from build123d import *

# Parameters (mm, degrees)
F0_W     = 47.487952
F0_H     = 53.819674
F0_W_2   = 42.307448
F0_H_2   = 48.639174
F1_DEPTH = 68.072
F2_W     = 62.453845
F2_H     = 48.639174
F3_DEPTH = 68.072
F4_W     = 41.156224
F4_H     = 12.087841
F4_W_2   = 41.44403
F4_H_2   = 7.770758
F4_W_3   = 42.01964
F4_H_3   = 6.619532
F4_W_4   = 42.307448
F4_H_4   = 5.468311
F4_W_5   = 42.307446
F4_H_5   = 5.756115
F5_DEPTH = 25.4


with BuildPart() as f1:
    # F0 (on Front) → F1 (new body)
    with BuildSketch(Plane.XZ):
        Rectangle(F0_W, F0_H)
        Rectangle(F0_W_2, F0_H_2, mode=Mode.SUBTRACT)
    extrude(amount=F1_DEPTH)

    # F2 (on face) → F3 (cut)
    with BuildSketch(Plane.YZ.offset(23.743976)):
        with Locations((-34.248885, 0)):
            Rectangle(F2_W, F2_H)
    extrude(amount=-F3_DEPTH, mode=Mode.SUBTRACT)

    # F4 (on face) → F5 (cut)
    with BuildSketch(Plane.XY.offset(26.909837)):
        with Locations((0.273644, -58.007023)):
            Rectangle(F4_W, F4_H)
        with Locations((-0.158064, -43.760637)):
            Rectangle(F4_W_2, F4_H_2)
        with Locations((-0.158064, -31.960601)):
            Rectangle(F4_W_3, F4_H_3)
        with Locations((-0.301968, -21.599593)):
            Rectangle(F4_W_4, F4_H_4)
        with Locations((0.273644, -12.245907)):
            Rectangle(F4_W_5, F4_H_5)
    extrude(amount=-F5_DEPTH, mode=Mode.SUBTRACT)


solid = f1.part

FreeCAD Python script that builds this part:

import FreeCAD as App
import Part
import Sketcher
Q = App.Units.Quantity

doc = App.newDocument("Part")
body = doc.addObject("PartDesign::Body", "Body")

# Sketch on XZ plane
sketch1 = doc.addObject("Sketcher::SketchObject", "Sketch")
body.addObject(sketch1)
sketch1.AttachmentSupport = (doc.XZ_Plane, [""])
sketch1.MapMode = "FlatFace"
sketch1.addGeometry([
    Part.LineSegment(App.Vector(-23.743976, 26.909837, 0), App.Vector(-23.743976, -26.909837, 0)),  # 0
    Part.LineSegment(App.Vector(-23.743976, -26.909837, 0), App.Vector(23.743976, -26.909837, 0)),  # 1
    Part.LineSegment(App.Vector(23.743976, -26.909837, 0), App.Vector(23.743976, 26.909837, 0)),  # 2
    Part.LineSegment(App.Vector(23.743976, 26.909837, 0), App.Vector(-23.743976, 26.909837, 0)),  # 3
    Part.LineSegment(App.Vector(21.153724, -24.319587, 0), App.Vector(-21.153724, -24.319587, 0)),  # 4
    Part.LineSegment(App.Vector(-21.153724, -24.319587, 0), App.Vector(-21.153724, 24.319587, 0)),  # 5
    Part.LineSegment(App.Vector(-21.153724, 24.319587, 0), App.Vector(21.153724, 24.319587, 0)),  # 6
    Part.LineSegment(App.Vector(21.153724, 24.319587, 0), App.Vector(21.153724, -24.319587, 0)),  # 7
], False)
sketch1.addConstraint([
    Sketcher.Constraint("Coincident", 0, 2, 1, 1),
    Sketcher.Constraint("Coincident", 1, 2, 2, 1),
    Sketcher.Constraint("Coincident", 2, 2, 3, 1),
    Sketcher.Constraint("Coincident", 3, 2, 0, 1),
    Sketcher.Constraint("Coincident", 4, 2, 5, 1),
    Sketcher.Constraint("Coincident", 5, 2, 6, 1),
    Sketcher.Constraint("Coincident", 6, 2, 7, 1),
    Sketcher.Constraint("Coincident", 7, 2, 4, 1),
    Sketcher.Constraint("Vertical", 0),
    Sketcher.Constraint("Horizontal", 1),
    Sketcher.Constraint("Vertical", 2),
    Sketcher.Constraint("Horizontal", 3),
    Sketcher.Constraint("Horizontal", 4),
    Sketcher.Constraint("Vertical", 5),
    Sketcher.Constraint("Horizontal", 6),
    Sketcher.Constraint("Vertical", 7),
    Sketcher.Constraint("Symmetric", 0, 2, 2, 2, -1, 1),
    Sketcher.Constraint("Symmetric", 4, 2, 6, 2, -1, 1),
    Sketcher.Constraint("DistanceX", 4, 2, 1, 2, 44.8977),
    Sketcher.Constraint("DistanceX", 1, 1, 1, 2, 47.487952),
    Sketcher.Constraint("DistanceY", 0, 2, 0, 1, 53.819674),
    Sketcher.Constraint("DistanceY", 5, 1, 5, 2, 48.639174),
])
pad1 = doc.addObject("PartDesign::Pad", "Pad")
body.addObject(pad1)
pad1.Profile = sketch1
pad1.Length = Q("2.68 in")

# Sketch on YZ plane
sketch2 = doc.addObject("Sketcher::SketchObject", "Sketch001")
body.addObject(sketch2)
sketch2.AttachmentSupport = (doc.YZ_Plane, [""])
sketch2.MapMode = "FlatFace"
sketch2.AttachmentOffset = App.Placement(App.Vector(0, 0, 23.743976), App.Rotation())
sketch2.addGeometry([
    Part.LineSegment(App.Vector(-65.475808, 24.319587, 0), App.Vector(-65.475808, -24.319587, 0)),
    Part.LineSegment(App.Vector(-65.475808, -24.319587, 0), App.Vector(-3.021962, -24.319587, 0)),
    Part.LineSegment(App.Vector(-3.021962, -24.319587, 0), App.Vector(-3.021962, 24.319587, 0)),
    Part.LineSegment(App.Vector(-3.021962, 24.319587, 0), App.Vector(-65.475808, 24.319587, 0)),
], False)
sketch2.addConstraint([
    Sketcher.Constraint("Coincident", 0, 2, 1, 1),
    Sketcher.Constraint("Coincident", 1, 2, 2, 1),
    Sketcher.Constraint("Coincident", 2, 2, 3, 1),
    Sketcher.Constraint("Coincident", 3, 2, 0, 1),
    Sketcher.Constraint("Vertical", 0),
    Sketcher.Constraint("Horizontal", 1),
    Sketcher.Constraint("Vertical", 2),
    Sketcher.Constraint("Horizontal", 3),
    Sketcher.Constraint("DistanceX", 1, 1, 1, 2, 62.453845),
    Sketcher.Constraint("DistanceY", 0, 2, 0, 1, 48.639174),
    Sketcher.Constraint("DistanceX", 0, 2, -1, 1, 65.475808),
    Sketcher.Constraint("DistanceY", 0, 2, -1, 1, 24.319587),
])
pocket1 = doc.addObject("PartDesign::Pocket", "Pocket")
body.addObject(pocket1)
pocket1.Profile = sketch2
pocket1.Length = Q("2.68 in")

# Sketch on XY plane
sketch3 = doc.addObject("Sketcher::SketchObject", "Sketch002")
body.addObject(sketch3)
sketch3.AttachmentSupport = (doc.XY_Plane, [""])
sketch3.MapMode = "FlatFace"
sketch3.AttachmentOffset = App.Placement(App.Vector(0, 0, 26.909837), App.Rotation())
sketch3.addGeometry([
    Part.LineSegment(App.Vector(-20.304468, -51.963102, 0), App.Vector(-20.304468, -64.050944, 0)),  # 0
    Part.LineSegment(App.Vector(-20.304468, -64.050944, 0), App.Vector(20.851756, -64.050944, 0)),  # 1
    Part.LineSegment(App.Vector(20.851756, -64.050944, 0), App.Vector(20.851756, -51.963102, 0)),  # 2
    Part.LineSegment(App.Vector(20.851756, -51.963102, 0), App.Vector(-20.304468, -51.963102, 0)),  # 3
    Part.LineSegment(App.Vector(-20.880079, -39.875258, 0), App.Vector(-20.880079, -47.646016, 0)),  # 4
    Part.LineSegment(App.Vector(-20.880079, -47.646016, 0), App.Vector(20.563951, -47.646016, 0)),  # 5
    Part.LineSegment(App.Vector(20.563951, -47.646016, 0), App.Vector(20.563951, -39.875258, 0)),  # 6
    Part.LineSegment(App.Vector(20.563951, -39.875258, 0), App.Vector(-20.880079, -39.875258, 0)),  # 7
    Part.LineSegment(App.Vector(-21.167884, -28.650835, 0), App.Vector(-21.167884, -35.270367, 0)),  # 8
    Part.LineSegment(App.Vector(-21.167884, -35.270367, 0), App.Vector(20.851756, -35.270367, 0)),  # 9
    Part.LineSegment(App.Vector(20.851756, -35.270367, 0), App.Vector(20.851756, -28.650835, 0)),  # 10
    Part.LineSegment(App.Vector(20.851756, -28.650835, 0), App.Vector(-21.167884, -28.650835, 0)),  # 11
    Part.LineSegment(App.Vector(-21.455692, -18.865437, 0), App.Vector(-21.455692, -24.333748, 0)),  # 12
    Part.LineSegment(App.Vector(-21.455692, -24.333748, 0), App.Vector(20.851756, -24.333748, 0)),  # 13
    Part.LineSegment(App.Vector(20.851756, -24.333748, 0), App.Vector(20.851756, -18.865437, 0)),  # 14
    Part.LineSegment(App.Vector(20.851756, -18.865437, 0), App.Vector(-21.455692, -18.865437, 0)),  # 15
    Part.LineSegment(App.Vector(-20.880079, -9.36785, 0), App.Vector(-20.880079, -15.123964, 0)),  # 16
    Part.LineSegment(App.Vector(-20.880079, -15.123964, 0), App.Vector(21.427367, -15.123964, 0)),  # 17
    Part.LineSegment(App.Vector(21.427367, -15.123964, 0), App.Vector(21.427367, -9.36785, 0)),  # 18
    Part.LineSegment(App.Vector(21.427367, -9.36785, 0), App.Vector(-20.880079, -9.36785, 0)),  # 19
], False)
sketch3.addConstraint([
    Sketcher.Constraint("Coincident", 0, 2, 1, 1),
    Sketcher.Constraint("Coincident", 1, 2, 2, 1),
    Sketcher.Constraint("Coincident", 2, 2, 3, 1),
    Sketcher.Constraint("Coincident", 3, 2, 0, 1),
    Sketcher.Constraint("Coincident", 4, 2, 5, 1),
    Sketcher.Constraint("Coincident", 5, 2, 6, 1),
    Sketcher.Constraint("Coincident", 6, 2, 7, 1),
    Sketcher.Constraint("Coincident", 7, 2, 4, 1),
    Sketcher.Constraint("Coincident", 8, 2, 9, 1),
    Sketcher.Constraint("Coincident", 9, 2, 10, 1),
    Sketcher.Constraint("Coincident", 10, 2, 11, 1),
    Sketcher.Constraint("Coincident", 11, 2, 8, 1),
    Sketcher.Constraint("Coincident", 12, 2, 13, 1),
    Sketcher.Constraint("Coincident", 13, 2, 14, 1),
    Sketcher.Constraint("Coincident", 14, 2, 15, 1),
    Sketcher.Constraint("Coincident", 15, 2, 12, 1),
    Sketcher.Constraint("Coincident", 16, 2, 17, 1),
    Sketcher.Constraint("Coincident", 17, 2, 18, 1),
    Sketcher.Constraint("Coincident", 18, 2, 19, 1),
    Sketcher.Constraint("Coincident", 19, 2, 16, 1),
    Sketcher.Constraint("Vertical", 0),
    Sketcher.Constraint("Horizontal", 1),
    Sketcher.Constraint("Vertical", 2),
    Sketcher.Constraint("Horizontal", 3),
    Sketcher.Constraint("Vertical", 4),
    Sketcher.Constraint("Horizontal", 5),
    Sketcher.Constraint("Vertical", 6),
    Sketcher.Constraint("Horizontal", 7),
    Sketcher.Constraint("Vertical", 8),
    Sketcher.Constraint("Horizontal", 9),
    Sketcher.Constraint("Vertical", 10),
    Sketcher.Constraint("Horizontal", 11),
    Sketcher.Constraint("Vertical", 12),
    Sketcher.Constraint("Horizontal", 13),
    Sketcher.Constraint("Vertical", 14),
    Sketcher.Constraint("Horizontal", 15),
    Sketcher.Constraint("Vertical", 16),
    Sketcher.Constraint("Horizontal", 17),
    Sketcher.Constraint("Vertical", 18),
    Sketcher.Constraint("Horizontal", 19),
    Sketcher.Constraint("Vertical", 2, 2, 9, 2),
    Sketcher.Constraint("Vertical", 10, 2, 13, 2),
    Sketcher.Constraint("Vertical", 7, 2, 16, 2),
    Sketcher.Constraint("DistanceX", 5, 1, 5, 2, 41.44403),
    Sketcher.Constraint("DistanceX", 9, 1, 9, 2, 42.01964),
    Sketcher.Constraint("DistanceY", 0, 2, 0, 1, 12.087841),
    Sketcher.Constraint("DistanceY", 4, 2, 4, 1, 7.770758),
    Sketcher.Constraint("DistanceY", 8, 2, 8, 1, 6.619532),
    Sketcher.Constraint("DistanceY", 12, 2, 12, 1, 5.468311),
    Sketcher.Constraint("DistanceY", 13, 2, 18, 2, 14.965899),
    Sketcher.Constraint("DistanceX", 1, 1, 1, 2, 41.156224),
    Sketcher.Constraint("DistanceX", 13, 1, 13, 2, 42.307448),
    Sketcher.Constraint("DistanceX", 17, 1, 17, 2, 42.307446),
    Sketcher.Constraint("DistanceY", 16, 2, 16, 1, 5.756115),
    Sketcher.Constraint("DistanceX", 0, 2, -1, 1, 20.304468),
    Sketcher.Constraint("DistanceX", 4, 2, -1, 1, 20.880079),
    Sketcher.Constraint("DistanceY", 6, 2, -1, 1, 39.875258),
    Sketcher.Constraint("DistanceY", 12, 2, -1, 1, 24.333748),
    Sketcher.Constraint("DistanceY", 7, 2, 8, 2, 4.604891),
    Sketcher.Constraint("DistanceY", 1, 2, 10, 2, 35.400109),
])
pocket2 = doc.addObject("PartDesign::Pocket", "Pocket001")
body.addObject(pocket2)
pocket2.Profile = sketch3
pocket2.Length = Q("1 in")

doc.recompute()
